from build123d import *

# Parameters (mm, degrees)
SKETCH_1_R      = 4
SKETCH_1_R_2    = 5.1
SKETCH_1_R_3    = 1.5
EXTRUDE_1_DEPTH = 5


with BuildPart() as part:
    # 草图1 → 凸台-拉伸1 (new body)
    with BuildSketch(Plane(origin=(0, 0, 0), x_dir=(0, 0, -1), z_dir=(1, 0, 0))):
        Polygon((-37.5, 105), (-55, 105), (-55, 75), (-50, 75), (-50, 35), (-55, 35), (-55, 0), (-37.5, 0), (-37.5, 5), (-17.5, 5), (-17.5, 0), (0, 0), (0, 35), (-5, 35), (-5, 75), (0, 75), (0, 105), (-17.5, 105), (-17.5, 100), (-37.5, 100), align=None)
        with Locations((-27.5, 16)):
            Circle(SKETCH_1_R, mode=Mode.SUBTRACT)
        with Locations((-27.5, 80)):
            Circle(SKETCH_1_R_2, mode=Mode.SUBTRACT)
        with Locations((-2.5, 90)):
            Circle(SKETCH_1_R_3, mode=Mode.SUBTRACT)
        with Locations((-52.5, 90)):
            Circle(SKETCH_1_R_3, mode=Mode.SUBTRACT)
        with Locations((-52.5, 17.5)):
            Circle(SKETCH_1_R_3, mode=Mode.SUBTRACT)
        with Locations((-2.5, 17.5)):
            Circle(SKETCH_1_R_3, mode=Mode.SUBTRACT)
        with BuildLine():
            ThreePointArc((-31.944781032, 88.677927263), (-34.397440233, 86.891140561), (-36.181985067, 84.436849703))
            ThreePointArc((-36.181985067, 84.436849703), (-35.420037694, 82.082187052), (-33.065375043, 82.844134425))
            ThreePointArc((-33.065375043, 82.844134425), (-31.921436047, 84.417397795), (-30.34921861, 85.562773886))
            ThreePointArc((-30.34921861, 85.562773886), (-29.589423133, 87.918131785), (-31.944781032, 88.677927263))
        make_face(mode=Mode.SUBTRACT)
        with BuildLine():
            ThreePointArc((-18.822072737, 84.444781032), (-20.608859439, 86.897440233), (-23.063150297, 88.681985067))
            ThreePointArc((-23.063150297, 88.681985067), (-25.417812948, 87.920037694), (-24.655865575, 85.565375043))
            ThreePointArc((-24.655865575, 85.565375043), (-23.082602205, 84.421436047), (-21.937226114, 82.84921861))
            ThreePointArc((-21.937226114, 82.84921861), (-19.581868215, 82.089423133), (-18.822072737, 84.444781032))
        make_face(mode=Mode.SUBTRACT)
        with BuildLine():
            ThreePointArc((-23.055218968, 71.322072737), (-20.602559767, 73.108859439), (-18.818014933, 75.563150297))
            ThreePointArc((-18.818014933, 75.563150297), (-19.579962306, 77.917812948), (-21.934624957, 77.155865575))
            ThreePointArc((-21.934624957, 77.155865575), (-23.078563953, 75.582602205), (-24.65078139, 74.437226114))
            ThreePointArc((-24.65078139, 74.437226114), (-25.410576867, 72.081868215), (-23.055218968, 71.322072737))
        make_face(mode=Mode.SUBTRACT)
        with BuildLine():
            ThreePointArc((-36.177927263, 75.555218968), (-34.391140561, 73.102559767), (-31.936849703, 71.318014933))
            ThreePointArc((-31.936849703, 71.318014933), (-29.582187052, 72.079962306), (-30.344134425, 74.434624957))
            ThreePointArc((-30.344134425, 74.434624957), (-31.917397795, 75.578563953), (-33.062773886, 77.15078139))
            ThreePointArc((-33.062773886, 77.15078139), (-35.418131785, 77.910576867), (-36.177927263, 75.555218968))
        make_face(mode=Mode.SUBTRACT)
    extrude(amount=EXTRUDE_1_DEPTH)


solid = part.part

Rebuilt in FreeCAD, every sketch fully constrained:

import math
import FreeCAD as App
import Part
import Sketcher

V = App.Vector

doc = App.newDocument("Part")
body = doc.addObject("PartDesign::Body", "Body")

sketch1 = body.newObject("Sketcher::SketchObject", "Sketch")
sketch1.AttachmentSupport = (doc.getObject("YZ_Plane"), [""])
sketch1.MapMode = "FlatFace"
sketch1.addGeometry([
    Part.LineSegment(V(105, 37.5, 0), V(105, 55, 0)),
    Part.LineSegment(V(105, 55, 0), V(75, 55, 0)),
    Part.LineSegment(V(75, 55, 0), V(75, 50, 0)),
    Part.LineSegment(V(75, 50, 0), V(35, 50, 0)),
    Part.LineSegment(V(35, 50, 0), V(35, 55, 0)),
    Part.LineSegment(V(35, 55, 0), V(0, 55, 0)),
    Part.LineSegment(V(0, 55, 0), V(0, 37.5, 0)),
    Part.LineSegment(V(0, 37.5, 0), V(5, 37.5, 0)),
    Part.LineSegment(V(5, 37.5, 0), V(5, 17.5, 0)),
    Part.LineSegment(V(5, 17.5, 0), V(0, 17.5, 0)),
    Part.LineSegment(V(0, 17.5, 0), V(0, 0, 0)),
    Part.LineSegment(V(0, 0, 0), V(35, 0, 0)),
    Part.LineSegment(V(35, 0, 0), V(35, 5, 0)),
    Part.LineSegment(V(35, 5, 0), V(75, 5, 0)),
    Part.LineSegment(V(75, 5, 0), V(75, 0, 0)),
    Part.LineSegment(V(75, 0, 0), V(105, 0, 0)),
    Part.LineSegment(V(105, 0, 0), V(105, 17.5, 0)),
    Part.LineSegment(V(105, 17.5, 0), V(100, 17.5, 0)),
    Part.LineSegment(V(100, 17.5, 0), V(100, 37.5, 0)),
    Part.LineSegment(V(100, 37.5, 0), V(105, 37.5, 0)),
    Part.Circle(V(17.5, 52.5, 0), V(0, 0, 1), 1.5),
    Part.Circle(V(16, 27.5, 0), V(0, 0, 1), 4),
    Part.Circle(V(17.5, 2.5, 0), V(0, 0, 1), 1.5),
    Part.Circle(V(90, 52.5, 0), V(0, 0, 1), 1.5),
    Part.ArcOfCircle(Part.Circle(V(80, 27.5, 0), V(0, 0, 1), 9.75), math.radians(117.121246), math.radians(152.931108)),
    Part.ArcOfCircle(Part.Circle(V(76.353, 34.620351, 0), V(0, 0, 1), 1.75), math.radians(-62.878754), math.radians(117.121246)),
    Part.ArcOfCircle(Part.Circle(V(80, 27.5, 0), V(0, 0, 1), 6.25), math.radians(117.121246), math.radians(152.931108)),
    Part.ArcOfCircle(Part.Circle(V(72.87632, 31.140492, 0), V(0, 0, 1), 1.75), math.radians(152.931108), math.radians(332.931108)),
    Part.ArcOfCircle(Part.Circle(V(80, 27.5, 0), V(0, 0, 1), 9.75), math.radians(27.121246), math.radians(62.931108)),
    Part.ArcOfCircle(Part.Circle(V(87.120351, 31.147, 0), V(0, 0, 1), 1.75), math.radians(-152.878754), math.radians(27.121246)),
    Part.ArcOfCircle(Part.Circle(V(80, 27.5, 0), V(0, 0, 1), 6.25), math.radians(27.121246), math.radians(62.931108)),
    Part.ArcOfCircle(Part.Circle(V(83.640492, 34.62368, 0), V(0, 0, 1), 1.75), math.radians(62.931108), math.radians(242.931108)),
    Part.ArcOfCircle(Part.Circle(V(80, 27.5, 0), V(0, 0, 1), 9.75), math.radians(-152.878754), math.radians(-117.068892)),
    Part.ArcOfCircle(Part.Circle(V(72.879649, 23.853, 0), V(0, 0, 1), 1.75), math.radians(27.121246), math.radians(207.121246)),
    Part.ArcOfCircle(Part.Circle(V(80, 27.5, 0), V(0, 0, 1), 6.25), math.radians(-152.878754), math.radians(-117.068892)),
    Part.ArcOfCircle(Part.Circle(V(76.359508, 20.37632, 0), V(0, 0, 1), 1.75), math.radians(-117.068892), math.radians(62.931108)),
    Part.Circle(V(80, 27.5, 0), V(0, 0, 1), 5.1),
    Part.ArcOfCircle(Part.Circle(V(80, 27.5, 0), V(0, 0, 1), 9.75), math.radians(-62.878754), math.radians(-27.068892)),
    Part.ArcOfCircle(Part.Circle(V(83.647, 20.379649, 0), V(0, 0, 1), 1.75), math.radians(117.121246), math.radians(297.121246)),
    Part.ArcOfCircle(Part.Circle(V(80, 27.5, 0), V(0, 0, 1), 6.25), math.radians(-62.878754), math.radians(-27.068892)),
    Part.ArcOfCircle(Part.Circle(V(87.12368, 23.859508, 0), V(0, 0, 1), 1.75), math.radians(-27.068892), math.radians(152.931108)),
    Part.Circle(V(90, 2.5, 0), V(0, 0, 1), 1.5),
], False)
sketch1.addConstraint([
    Sketcher.Constraint("Coincident", 0, 2, 1, 1),
    Sketcher.Constraint("Coincident", 1, 2, 2, 1),
    Sketcher.Constraint("Coincident", 2, 2, 3, 1),
    Sketcher.Constraint("Coincident", 3, 2, 4, 1),
    Sketcher.Constraint("Coincident", 4, 2, 5, 1),
    Sketcher.Constraint("Coincident", 5, 2, 6, 1),
    Sketcher.Constraint("Coincident", 6, 2, 7, 1),
    Sketcher.Constraint("Coincident", 7, 2, 8, 1),
    Sketcher.Constraint("Coincident", 8, 2, 9, 1),
    Sketcher.Constraint("Coincident", 9, 2, 10, 1),
    Sketcher.Constraint("Coincident", 10, 2, 11, 1),
    Sketcher.Constraint("Coincident", 11, 2, 12, 1),
    Sketcher.Constraint("Coincident", 12, 2, 13, 1),
    Sketcher.Constraint("Coincident", 13, 2, 14, 1),
    Sketcher.Constraint("Coincident", 14, 2, 15, 1),
    Sketcher.Constraint("Coincident", 15, 2, 16, 1),
    Sketcher.Constraint("Coincident", 16, 2, 17, 1),
    Sketcher.Constraint("Coincident", 17, 2, 18, 1),
    Sketcher.Constraint("Coincident", 18, 2, 19, 1),
    Sketcher.Constraint("Coincident", 19, 2, 0, 1),
    Sketcher.Constraint("Tangent", 24, 1, 25, 2),
    Sketcher.Constraint("Tangent", 25, 1, 26, 1),
    Sketcher.Constraint("Tangent", 26, 2, 27, 2),
    Sketcher.Constraint("Tangent", 27, 1, 24, 2),
    Sketcher.Constraint("Tangent", 28, 1, 29, 2),
    Sketcher.Constraint("Tangent", 29, 1, 30, 1),
    Sketcher.Constraint("Tangent", 30, 2, 31, 2),
    Sketcher.Constraint("Tangent", 31, 1, 28, 2),
    Sketcher.Constraint("Tangent", 32, 1, 33, 2),
    Sketcher.Constraint("Tangent", 33, 1, 34, 1),
    Sketcher.Constraint("Tangent", 34, 2, 35, 2),
    Sketcher.Constraint("Tangent", 35, 1, 32, 2),
    Sketcher.Constraint("Tangent", 37, 1, 38, 2),
    Sketcher.Constraint("Tangent", 38, 1, 39, 1),
    Sketcher.Constraint("Tangent", 39, 2, 40, 2),
    Sketcher.Constraint("Tangent", 40, 1, 37, 2),
    Sketcher.Constraint("Vertical", 0),
    Sketcher.Constraint("Horizontal", 1),
    Sketcher.Constraint("Vertical", 2),
    Sketcher.Constraint("Horizontal", 3),
    Sketcher.Constraint("Vertical", 4),
    Sketcher.Constraint("Horizontal", 5),
    Sketcher.Constraint("Vertical", 6),
    Sketcher.Constraint("Horizontal", 7),
    Sketcher.Constraint("Vertical", 8),
    Sketcher.Constraint("Horizontal", 9),
    Sketcher.Constraint("Vertical", 10),
    Sketcher.Constraint("Horizontal", 11),
    Sketcher.Constraint("Vertical", 12),
    Sketcher.Constraint("Horizontal", 13),
    Sketcher.Constraint("Vertical", 14),
    Sketcher.Constraint("Horizontal", 15),
    Sketcher.Constraint("Vertical", 16),
    Sketcher.Constraint("Horizontal", 17),
    Sketcher.Constraint("Vertical", 18),
    Sketcher.Constraint("Horizontal", 19),
    Sketcher.Constraint("Coincident", 10, 2, -1, 1),
    Sketcher.Constraint("Coincident", 26, 3, 24, 3),
    Sketcher.Constraint("Coincident", 28, 3, 24, 3),
    Sketcher.Constraint("Coincident", 30, 3, 24, 3),
    Sketcher.Constraint("Coincident", 32, 3, 24, 3),
    Sketcher.Constraint("Coincident", 34, 3, 24, 3),
    Sketcher.Constraint("Coincident", 36, 3, 24, 3),
    Sketcher.Constraint("Coincident", 37, 3, 24, 3),
    Sketcher.Constraint("Coincident", 39, 3, 24, 3),
    Sketcher.Constraint("Equal", 20, 22),
    Sketcher.Constraint("Equal", 22, 23),
    Sketcher.Constraint("Equal", 24, 28),
    Sketcher.Constraint("Equal", 27, 29),
    Sketcher.Constraint("Equal", 28, 32),
    Sketcher.Constraint("Equal", 31, 33),
    Sketcher.Constraint("Equal", 32, 37),
    Sketcher.Constraint("Equal", 35, 38),
    Sketcher.Constraint("Equal", 23, 41),
    Sketcher.Constraint("PointOnObject", 5, 2, -2),
    Sketcher.Constraint("PointOnObject", 14, 2, -1),
    Sketcher.Constraint("Horizontal", 20, 3, 23, 3),
    Sketcher.Constraint("Horizontal", 21, 3, 24, 3),
    Sketcher.Constraint("Horizontal", 22, 3, 41, 3),
    Sketcher.Constraint("Horizontal", 1, 2, 4, 2),
    Sketcher.Constraint("Horizontal", 9, 2, 16, 2),
    Sketcher.Constraint("Horizontal", 7, 2, 18, 2),
    Sketcher.Constraint("Vertical", 20, 3, 22, 3),
    Sketcher.Constraint("Vertical", 23, 3, 41, 3),
    Sketcher.Constraint("Vertical", 4, 2, 11, 2),
    Sketcher.Constraint("Vertical", 2, 2, 13, 2),
    Sketcher.Constraint("Vertical", 0, 2, 15, 2),
    Sketcher.Constraint("Equal", 9, 17),
    Sketcher.Constraint("Equal", 19, 2),
    Sketcher.Constraint("Equal", 6, 10),
    Sketcher.Constraint("Equal", 4, 12),
    Sketcher.Constraint("Diameter", 20, 3.0),
    Sketcher.Constraint("Diameter", 21, 8.0),
    Sketcher.Constraint("Diameter", 36, 10.2),
    Sketcher.Constraint("DistanceX", 1, 2, 1, 1, 30.0),
    Sketcher.Constraint("DistanceX", 3, 2, 3, 1, 40.0),
    Sketcher.Constraint("DistanceX", 5, 2, 5, 1, 35.0),
    Sketcher.Constraint("DistanceX", 7, 1, 7, 2, 5.0),
    Sketcher.Constraint("DistanceY", 8, 2, 8, 1, 20.0),
    Sketcher.Constraint("Radius", 24, 9.75),
    Sketcher.Constraint("Radius", 25, 1.75),
    Sketcher.Constraint("DistanceY", 0, 1, 0, 2, 17.5),
    Sketcher.Constraint("DistanceX", -1, 1, 21, 3, 16.0),
    Sketcher.Constraint("DistanceX", -1, 1, 23, 3, 90.0),
    Sketcher.Constraint("DistanceX", -1, 1, 24, 3, 80.0),
    Sketcher.Constraint("DistanceY", 21, 3, 20, 3, 25.0),
    Sketcher.Constraint("DistanceY", 22, 3, 21, 3, 25.0),
    Sketcher.Constraint("DistanceY", 21, 3, 6, 2, 10.0),
    Sketcher.Constraint("DistanceX", -1, 1, 20, 3, 17.5),
    Sketcher.Constraint("DistanceX", -1, 1, 25, 3, 76.353),
    Sketcher.Constraint("DistanceY", -1, 1, 29, 3, 31.147),
    Sketcher.Constraint("DistanceY", -1, 1, 33, 3, 23.853),
    Sketcher.Constraint("DistanceX", -1, 1, 38, 3, 83.647),
    Sketcher.Constraint("DistanceX", 27, 3, 24, 1, 2.678899),
    Sketcher.Constraint("DistanceY", 28, 1, 31, 3, 2.678899),
    Sketcher.Constraint("DistanceY", 35, 3, 32, 1, 2.678899),
    Sketcher.Constraint("DistanceX", 37, 1, 40, 3, 2.678899),
])
pad1 = body.newObject("PartDesign::Pad", "Pad")
pad1.Profile = sketch1
pad1.Length = 5

doc.recompute()
